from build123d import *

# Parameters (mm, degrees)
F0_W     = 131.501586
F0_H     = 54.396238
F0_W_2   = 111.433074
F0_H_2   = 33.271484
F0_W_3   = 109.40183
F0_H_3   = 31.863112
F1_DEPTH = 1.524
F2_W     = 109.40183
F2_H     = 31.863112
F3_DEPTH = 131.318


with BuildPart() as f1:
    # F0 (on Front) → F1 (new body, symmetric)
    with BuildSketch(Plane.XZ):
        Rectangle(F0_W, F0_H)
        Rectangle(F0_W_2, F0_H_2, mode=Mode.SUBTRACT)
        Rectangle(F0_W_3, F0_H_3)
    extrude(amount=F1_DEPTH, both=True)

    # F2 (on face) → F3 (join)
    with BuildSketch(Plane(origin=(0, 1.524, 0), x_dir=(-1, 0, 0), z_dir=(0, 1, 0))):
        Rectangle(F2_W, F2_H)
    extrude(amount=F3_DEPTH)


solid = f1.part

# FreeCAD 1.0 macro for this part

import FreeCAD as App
import Part
import Sketcher
Q = App.Units.Quantity


def add_polygon(sketch, points):
    """Adds a closed chain of lines whose ends are joined by coincident constraints."""
    first, n = sketch.GeometryCount, len(points)
    for a, b in zip(points, points[1:] + points[:1]):
        sketch.addGeometry(Part.LineSegment(App.Vector(*a, 0), App.Vector(*b, 0)), False)
    for i in range(n):
        sketch.addConstraint(Sketcher.Constraint("Coincident", first + i, 2, first + (i + 1) % n, 1))

doc = App.newDocument("Part")
body = doc.addObject("PartDesign::Body", "Body")
body.AllowCompound = True

sketch1 = doc.addObject("Sketcher::SketchObject", "Sketch")
body.addObject(sketch1)
sketch1.AttachmentSupport = (doc.XZ_Plane, [""])
sketch1.MapMode = "FlatFace"
add_polygon(sketch1, [(-66, 27), (-66, -27), (66, -27), (66, 27)])
add_polygon(sketch1, [(56, -17), (-56, -17), (-56, 17), (56, 17)])
add_polygon(sketch1, [(-55, 16), (-55, -16), (55, -16), (55, 16)])
sketch1.addConstraint([
    Sketcher.Constraint("Vertical", 0),
    Sketcher.Constraint("Horizontal", 1),
    Sketcher.Constraint("Vertical", 2),
    Sketcher.Constraint("Horizontal", 3),
    Sketcher.Constraint("Horizontal", 4),
    Sketcher.Constraint("Vertical", 5),
    Sketcher.Constraint("Horizontal", 6),
    Sketcher.Constraint("Vertical", 7),
    Sketcher.Constraint("Vertical", 8),
    Sketcher.Constraint("Horizontal", 9),
    Sketcher.Constraint("Vertical", 10),
    Sketcher.Constraint("Horizontal", 11),
    Sketcher.Constraint("Symmetric", 0, 2, 2, 2, -1, 1),
    Sketcher.Constraint("Symmetric", 4, 2, 6, 2, -1, 1),
    Sketcher.Constraint("Symmetric", 8, 2, 10, 2, -1, 1),
    Sketcher.Constraint("DistanceX", 9, 1, 9, 2, Q("109.40183 mm")),
    Sketcher.Constraint("DistanceX", 1, 1, 1, 2, Q("131.501586 mm")),
    Sketcher.Constraint("DistanceX", 4, 2, 4, 1, Q("111.433074 mm")),
    Sketcher.Constraint("DistanceY", 0, 2, 0, 1, Q("54.396238 mm")),
    Sketcher.Constraint("DistanceY", 5, 1, 5, 2, Q("33.271484 mm")),
    Sketcher.Constraint("DistanceY", 8, 2, 8, 1, Q("31.863112 mm")),
])
pad1 = doc.addObject("PartDesign::Pad", "Pad")
body.addObject(pad1)
pad1.Profile = sketch1
pad1.Length = Q("0.12 in")
pad1.Midplane = True

sketch2 = doc.addObject("Sketcher::SketchObject", "Sketch001")
body.addObject(sketch2)
sketch2.AttachmentSupport = (doc.XZ_Plane, [""])
sketch2.MapMode = "FlatFace"
sketch2.AttachmentOffset = App.Placement(App.Vector(0, 0, -0.06 * 25.4), App.Rotation())
add_polygon(sketch2, [(55, 16), (55, -16), (-55, -16), (-55, 16)])
sketch2.addConstraint([
    Sketcher.Constraint("Vertical", 0),
    Sketcher.Constraint("Horizontal", 1),
    Sketcher.Constraint("Vertical", 2),
    Sketcher.Constraint("Horizontal", 3),
    Sketcher.Constraint("Symmetric", 0, 2, 2, 2, -1, 1),
    Sketcher.Constraint("DistanceX", 1, 2, 1, 1, Q("109.40183 mm")),
    Sketcher.Constraint("DistanceY", 0, 2, 0, 1, Q("31.863112 mm")),
])
pad2 = doc.addObject("PartDesign::Pad", "Pad001")
body.addObject(pad2)
pad2.Profile = sketch2
pad2.Length = Q("5.17 in")
pad2.Reversed = True

doc.recompute()
